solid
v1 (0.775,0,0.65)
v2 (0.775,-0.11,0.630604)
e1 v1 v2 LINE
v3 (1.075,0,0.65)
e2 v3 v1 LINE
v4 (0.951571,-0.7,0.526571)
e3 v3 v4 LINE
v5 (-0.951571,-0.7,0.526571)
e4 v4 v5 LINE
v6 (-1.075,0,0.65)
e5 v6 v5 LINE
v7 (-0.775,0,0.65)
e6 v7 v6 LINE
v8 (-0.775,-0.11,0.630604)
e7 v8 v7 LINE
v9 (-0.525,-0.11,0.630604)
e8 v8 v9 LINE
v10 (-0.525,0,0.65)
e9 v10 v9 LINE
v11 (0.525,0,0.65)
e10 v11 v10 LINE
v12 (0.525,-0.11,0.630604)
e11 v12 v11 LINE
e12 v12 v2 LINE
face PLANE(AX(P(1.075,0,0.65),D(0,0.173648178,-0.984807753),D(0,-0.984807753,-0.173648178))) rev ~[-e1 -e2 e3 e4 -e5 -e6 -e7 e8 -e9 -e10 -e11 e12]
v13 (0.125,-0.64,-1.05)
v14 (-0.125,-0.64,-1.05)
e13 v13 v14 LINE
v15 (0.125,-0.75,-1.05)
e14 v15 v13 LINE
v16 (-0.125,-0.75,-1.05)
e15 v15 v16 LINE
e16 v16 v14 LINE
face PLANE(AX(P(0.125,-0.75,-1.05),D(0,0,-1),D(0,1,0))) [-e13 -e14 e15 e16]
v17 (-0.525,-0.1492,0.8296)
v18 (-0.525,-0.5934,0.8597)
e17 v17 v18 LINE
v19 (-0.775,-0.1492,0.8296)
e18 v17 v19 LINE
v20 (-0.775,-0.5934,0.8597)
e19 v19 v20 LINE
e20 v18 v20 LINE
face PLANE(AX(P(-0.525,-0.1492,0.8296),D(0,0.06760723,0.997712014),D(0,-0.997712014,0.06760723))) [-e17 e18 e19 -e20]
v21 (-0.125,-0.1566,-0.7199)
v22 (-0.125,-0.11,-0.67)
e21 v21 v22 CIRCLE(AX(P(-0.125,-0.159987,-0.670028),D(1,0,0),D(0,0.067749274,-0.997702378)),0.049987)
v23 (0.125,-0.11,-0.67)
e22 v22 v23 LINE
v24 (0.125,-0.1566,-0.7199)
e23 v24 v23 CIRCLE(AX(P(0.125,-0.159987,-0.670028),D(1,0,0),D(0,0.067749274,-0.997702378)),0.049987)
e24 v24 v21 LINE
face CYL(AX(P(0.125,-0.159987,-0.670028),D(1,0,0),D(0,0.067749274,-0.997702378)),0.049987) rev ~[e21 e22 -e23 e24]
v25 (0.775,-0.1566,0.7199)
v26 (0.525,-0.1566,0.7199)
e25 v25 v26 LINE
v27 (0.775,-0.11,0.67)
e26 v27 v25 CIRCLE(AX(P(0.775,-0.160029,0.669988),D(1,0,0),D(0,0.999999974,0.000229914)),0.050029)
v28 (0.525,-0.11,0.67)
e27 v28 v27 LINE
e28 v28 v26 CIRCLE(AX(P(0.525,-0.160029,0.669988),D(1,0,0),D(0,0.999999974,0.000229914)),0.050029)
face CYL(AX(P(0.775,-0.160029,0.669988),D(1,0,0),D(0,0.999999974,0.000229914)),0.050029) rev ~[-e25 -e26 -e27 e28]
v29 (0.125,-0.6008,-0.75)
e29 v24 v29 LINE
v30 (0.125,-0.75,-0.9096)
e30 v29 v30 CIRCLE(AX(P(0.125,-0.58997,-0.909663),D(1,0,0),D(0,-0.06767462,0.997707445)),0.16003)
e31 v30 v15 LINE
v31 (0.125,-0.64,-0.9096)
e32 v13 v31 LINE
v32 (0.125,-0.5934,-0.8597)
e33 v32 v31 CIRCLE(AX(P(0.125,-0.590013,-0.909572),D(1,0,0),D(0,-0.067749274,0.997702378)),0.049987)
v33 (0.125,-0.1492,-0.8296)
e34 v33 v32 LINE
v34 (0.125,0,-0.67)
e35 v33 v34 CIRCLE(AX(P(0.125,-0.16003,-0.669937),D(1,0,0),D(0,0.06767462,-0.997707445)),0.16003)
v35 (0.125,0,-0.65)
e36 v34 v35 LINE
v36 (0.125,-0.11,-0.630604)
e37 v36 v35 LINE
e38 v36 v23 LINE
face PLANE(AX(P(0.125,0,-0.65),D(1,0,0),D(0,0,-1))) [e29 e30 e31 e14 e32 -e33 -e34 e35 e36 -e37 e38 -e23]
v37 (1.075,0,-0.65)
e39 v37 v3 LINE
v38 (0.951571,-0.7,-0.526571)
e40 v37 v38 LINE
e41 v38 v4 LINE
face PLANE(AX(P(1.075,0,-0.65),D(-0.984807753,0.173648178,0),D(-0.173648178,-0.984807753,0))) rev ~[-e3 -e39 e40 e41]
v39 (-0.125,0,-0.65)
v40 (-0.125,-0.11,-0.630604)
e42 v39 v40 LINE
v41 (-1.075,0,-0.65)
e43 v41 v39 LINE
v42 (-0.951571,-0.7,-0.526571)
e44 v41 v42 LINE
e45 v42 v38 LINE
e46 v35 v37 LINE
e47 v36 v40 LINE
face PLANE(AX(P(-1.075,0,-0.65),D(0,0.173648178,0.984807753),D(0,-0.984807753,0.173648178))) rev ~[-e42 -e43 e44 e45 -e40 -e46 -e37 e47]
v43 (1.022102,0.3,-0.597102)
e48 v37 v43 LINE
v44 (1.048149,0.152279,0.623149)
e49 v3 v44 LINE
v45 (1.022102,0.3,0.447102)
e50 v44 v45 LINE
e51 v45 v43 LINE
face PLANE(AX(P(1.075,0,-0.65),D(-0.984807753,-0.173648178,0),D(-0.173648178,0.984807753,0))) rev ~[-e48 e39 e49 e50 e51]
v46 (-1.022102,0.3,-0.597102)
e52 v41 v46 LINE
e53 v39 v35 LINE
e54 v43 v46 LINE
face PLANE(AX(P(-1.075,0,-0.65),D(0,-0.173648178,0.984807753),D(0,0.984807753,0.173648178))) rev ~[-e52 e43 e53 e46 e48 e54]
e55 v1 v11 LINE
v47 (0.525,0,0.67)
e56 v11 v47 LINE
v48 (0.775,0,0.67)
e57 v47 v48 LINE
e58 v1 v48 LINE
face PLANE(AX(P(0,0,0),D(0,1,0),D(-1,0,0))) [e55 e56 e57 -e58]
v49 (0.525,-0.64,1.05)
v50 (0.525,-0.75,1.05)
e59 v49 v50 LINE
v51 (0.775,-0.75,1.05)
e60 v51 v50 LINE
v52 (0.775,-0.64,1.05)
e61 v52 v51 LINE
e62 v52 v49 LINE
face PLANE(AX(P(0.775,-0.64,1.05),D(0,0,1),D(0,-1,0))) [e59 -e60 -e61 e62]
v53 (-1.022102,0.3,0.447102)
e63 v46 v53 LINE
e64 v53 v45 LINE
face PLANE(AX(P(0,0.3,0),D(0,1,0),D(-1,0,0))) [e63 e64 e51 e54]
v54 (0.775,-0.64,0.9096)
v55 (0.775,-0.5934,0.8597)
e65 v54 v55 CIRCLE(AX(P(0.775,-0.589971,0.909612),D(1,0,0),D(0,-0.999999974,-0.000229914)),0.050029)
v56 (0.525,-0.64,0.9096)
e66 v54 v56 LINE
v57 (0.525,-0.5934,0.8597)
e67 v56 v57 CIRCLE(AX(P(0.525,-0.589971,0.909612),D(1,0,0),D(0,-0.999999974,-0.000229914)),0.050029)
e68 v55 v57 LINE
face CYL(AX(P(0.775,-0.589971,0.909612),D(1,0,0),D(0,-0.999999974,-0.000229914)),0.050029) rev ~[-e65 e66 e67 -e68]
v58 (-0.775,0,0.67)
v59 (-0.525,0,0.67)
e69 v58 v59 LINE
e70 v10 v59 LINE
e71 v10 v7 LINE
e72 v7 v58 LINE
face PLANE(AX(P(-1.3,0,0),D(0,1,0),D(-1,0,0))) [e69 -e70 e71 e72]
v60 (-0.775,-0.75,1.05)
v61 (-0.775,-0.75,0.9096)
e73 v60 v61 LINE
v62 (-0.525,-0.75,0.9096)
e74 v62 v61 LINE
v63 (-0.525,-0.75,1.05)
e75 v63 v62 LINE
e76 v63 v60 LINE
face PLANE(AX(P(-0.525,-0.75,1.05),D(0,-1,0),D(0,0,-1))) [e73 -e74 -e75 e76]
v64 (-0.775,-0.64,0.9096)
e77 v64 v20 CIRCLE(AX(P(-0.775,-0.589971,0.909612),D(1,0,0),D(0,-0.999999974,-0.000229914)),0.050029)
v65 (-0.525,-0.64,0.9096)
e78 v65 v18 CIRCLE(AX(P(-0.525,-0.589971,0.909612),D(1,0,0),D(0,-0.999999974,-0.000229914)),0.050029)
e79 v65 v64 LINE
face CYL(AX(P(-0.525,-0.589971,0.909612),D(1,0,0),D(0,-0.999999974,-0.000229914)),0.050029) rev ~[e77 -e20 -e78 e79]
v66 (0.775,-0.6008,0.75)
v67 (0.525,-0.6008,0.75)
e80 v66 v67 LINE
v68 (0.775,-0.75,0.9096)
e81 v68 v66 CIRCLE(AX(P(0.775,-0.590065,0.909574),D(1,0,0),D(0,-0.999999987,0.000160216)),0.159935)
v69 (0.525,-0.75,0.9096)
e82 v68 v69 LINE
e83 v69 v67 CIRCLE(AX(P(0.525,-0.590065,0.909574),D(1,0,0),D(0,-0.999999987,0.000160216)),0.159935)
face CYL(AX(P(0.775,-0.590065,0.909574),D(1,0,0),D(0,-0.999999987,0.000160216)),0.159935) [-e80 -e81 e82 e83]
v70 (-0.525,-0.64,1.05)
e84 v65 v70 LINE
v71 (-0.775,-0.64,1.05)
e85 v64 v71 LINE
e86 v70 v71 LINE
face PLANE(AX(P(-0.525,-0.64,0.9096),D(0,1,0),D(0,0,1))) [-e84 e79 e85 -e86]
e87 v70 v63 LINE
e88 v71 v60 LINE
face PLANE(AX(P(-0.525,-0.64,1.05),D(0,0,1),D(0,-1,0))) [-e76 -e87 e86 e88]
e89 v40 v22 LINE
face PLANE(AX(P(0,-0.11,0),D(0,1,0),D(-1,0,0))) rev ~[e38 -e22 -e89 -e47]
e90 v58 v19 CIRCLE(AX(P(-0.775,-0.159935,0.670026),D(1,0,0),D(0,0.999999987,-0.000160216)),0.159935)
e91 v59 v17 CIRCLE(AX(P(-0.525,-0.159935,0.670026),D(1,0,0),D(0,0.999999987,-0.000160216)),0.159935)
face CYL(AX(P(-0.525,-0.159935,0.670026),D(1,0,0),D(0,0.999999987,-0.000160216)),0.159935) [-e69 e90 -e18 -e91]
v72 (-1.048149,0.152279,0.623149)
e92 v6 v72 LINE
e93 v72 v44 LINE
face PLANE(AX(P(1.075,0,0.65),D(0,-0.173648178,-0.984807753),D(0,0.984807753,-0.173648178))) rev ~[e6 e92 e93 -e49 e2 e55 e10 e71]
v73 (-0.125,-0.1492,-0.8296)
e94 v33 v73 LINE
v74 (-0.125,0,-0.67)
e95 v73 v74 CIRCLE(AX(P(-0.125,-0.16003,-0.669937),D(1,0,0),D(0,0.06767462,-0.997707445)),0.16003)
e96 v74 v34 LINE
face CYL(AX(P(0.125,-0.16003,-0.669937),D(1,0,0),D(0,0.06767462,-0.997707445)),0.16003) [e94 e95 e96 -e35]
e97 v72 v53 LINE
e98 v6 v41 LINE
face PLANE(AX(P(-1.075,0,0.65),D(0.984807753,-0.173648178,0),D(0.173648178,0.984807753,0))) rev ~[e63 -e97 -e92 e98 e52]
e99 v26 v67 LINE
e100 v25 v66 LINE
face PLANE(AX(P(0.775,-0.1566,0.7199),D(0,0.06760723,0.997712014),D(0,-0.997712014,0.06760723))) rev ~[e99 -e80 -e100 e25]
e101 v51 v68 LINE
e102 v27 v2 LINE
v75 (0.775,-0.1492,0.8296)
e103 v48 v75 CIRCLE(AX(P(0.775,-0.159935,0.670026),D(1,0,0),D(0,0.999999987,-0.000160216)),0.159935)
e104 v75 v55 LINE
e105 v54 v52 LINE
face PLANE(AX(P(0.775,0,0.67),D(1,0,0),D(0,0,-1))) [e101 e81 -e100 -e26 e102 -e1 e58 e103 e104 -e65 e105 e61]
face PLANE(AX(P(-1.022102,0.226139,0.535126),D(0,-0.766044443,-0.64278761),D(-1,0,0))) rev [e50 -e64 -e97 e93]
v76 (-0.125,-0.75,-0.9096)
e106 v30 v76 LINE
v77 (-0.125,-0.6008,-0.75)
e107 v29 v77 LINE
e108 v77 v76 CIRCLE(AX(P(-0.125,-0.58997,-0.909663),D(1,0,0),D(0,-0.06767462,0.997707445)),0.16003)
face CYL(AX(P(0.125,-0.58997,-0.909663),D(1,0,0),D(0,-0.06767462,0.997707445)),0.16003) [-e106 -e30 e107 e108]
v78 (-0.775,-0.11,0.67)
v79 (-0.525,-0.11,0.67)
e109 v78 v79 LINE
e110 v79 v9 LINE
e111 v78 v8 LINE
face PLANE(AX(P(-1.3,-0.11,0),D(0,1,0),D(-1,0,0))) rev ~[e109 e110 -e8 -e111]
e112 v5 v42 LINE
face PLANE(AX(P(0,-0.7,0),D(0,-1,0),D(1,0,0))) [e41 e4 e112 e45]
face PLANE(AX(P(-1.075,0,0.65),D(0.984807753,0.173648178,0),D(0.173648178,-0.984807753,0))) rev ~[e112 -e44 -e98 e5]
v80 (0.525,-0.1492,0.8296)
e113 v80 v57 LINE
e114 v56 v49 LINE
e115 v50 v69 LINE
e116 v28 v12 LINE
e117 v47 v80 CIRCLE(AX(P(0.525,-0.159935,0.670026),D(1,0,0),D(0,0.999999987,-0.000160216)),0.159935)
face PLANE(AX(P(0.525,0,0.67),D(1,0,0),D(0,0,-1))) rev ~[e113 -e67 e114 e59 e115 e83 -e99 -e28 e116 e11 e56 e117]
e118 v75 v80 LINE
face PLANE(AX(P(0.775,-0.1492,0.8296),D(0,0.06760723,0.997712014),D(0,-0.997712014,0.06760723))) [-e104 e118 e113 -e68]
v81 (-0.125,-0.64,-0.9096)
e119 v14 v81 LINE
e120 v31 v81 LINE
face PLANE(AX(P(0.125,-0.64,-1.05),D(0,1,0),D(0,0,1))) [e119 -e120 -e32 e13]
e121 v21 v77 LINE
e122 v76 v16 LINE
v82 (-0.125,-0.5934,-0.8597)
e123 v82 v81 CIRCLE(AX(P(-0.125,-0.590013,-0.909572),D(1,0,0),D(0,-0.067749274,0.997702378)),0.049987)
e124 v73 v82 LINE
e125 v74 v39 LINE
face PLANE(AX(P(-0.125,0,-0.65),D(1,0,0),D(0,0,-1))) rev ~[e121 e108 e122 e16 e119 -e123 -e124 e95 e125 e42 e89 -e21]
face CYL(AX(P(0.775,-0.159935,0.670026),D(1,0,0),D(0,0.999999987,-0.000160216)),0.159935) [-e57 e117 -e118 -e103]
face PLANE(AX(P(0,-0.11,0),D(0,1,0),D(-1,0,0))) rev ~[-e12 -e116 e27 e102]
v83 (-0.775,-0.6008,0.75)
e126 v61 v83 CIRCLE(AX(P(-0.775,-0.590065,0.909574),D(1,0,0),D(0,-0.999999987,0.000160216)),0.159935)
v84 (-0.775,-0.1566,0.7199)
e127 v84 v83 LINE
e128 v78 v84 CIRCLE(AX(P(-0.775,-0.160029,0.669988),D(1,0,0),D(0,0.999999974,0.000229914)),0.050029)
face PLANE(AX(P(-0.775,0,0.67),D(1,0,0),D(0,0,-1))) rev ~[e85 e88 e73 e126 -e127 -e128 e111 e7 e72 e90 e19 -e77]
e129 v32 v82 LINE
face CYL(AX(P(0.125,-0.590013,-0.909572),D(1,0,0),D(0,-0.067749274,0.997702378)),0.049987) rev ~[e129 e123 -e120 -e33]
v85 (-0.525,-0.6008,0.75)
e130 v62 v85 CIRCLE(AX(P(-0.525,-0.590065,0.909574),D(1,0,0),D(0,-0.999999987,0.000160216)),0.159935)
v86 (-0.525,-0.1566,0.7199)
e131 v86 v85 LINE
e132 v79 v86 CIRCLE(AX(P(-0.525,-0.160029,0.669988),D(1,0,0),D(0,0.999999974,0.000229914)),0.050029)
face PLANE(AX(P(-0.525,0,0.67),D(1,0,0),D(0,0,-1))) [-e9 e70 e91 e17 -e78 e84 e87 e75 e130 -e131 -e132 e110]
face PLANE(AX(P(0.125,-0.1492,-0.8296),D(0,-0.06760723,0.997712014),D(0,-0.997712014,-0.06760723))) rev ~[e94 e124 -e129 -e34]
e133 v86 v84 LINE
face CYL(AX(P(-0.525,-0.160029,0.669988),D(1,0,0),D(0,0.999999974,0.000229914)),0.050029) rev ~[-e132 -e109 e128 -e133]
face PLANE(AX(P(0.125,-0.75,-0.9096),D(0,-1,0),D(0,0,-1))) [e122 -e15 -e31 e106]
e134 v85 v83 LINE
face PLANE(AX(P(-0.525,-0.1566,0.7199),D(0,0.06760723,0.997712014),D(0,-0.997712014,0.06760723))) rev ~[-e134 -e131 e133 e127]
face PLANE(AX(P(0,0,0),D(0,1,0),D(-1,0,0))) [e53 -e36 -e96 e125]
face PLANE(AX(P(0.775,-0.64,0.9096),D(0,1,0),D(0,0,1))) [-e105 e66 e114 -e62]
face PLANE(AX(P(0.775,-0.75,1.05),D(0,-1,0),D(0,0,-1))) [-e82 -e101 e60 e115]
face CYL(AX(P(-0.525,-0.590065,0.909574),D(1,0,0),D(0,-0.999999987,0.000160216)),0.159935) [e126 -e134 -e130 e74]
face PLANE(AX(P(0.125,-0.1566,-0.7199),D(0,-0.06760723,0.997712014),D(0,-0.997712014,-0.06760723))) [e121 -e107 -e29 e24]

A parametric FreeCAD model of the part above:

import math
import FreeCAD as App
import Part
import Sketcher

V = App.Vector


def edges_at(feature, points):
    """Names of the edges that pass closest to the given points."""
    edges = feature.Shape.Edges
    near = lambda p: min(range(len(edges)), key=lambda i: edges[i].distToShape(Part.Vertex(*p))[0])
    return sorted({f"Edge{near(p) + 1}" for p in points})


def add_polygon(sketch, points):
    """Adds a closed chain of lines whose ends are joined by coincident constraints."""
    first, n = sketch.GeometryCount, len(points)
    for a, b in zip(points, points[1:] + points[:1]):
        sketch.addGeometry(Part.LineSegment(App.Vector(*a, 0), App.Vector(*b, 0)), False)
    for i in range(n):
        sketch.addConstraint(Sketcher.Constraint("Coincident", first + i, 2, first + (i + 1) % n, 1))

doc = App.newDocument("Part")
body = doc.addObject("PartDesign::Body", "Body")

# Sketch on XZ plane
sketch1 = body.newObject("Sketcher::SketchObject", "Sketch")
sketch1.AttachmentSupport = (doc.getObject("XZ_Plane"), [""])
sketch1.MapMode = "FlatFace"
add_polygon(sketch1, [(-1.075, 0.65), (1.075, 0.65), (1.075, -0.65), (-1.075, -0.65)])  # lines 0-3
sketch1.addConstraint([
    Sketcher.Constraint("Horizontal", 0),
    Sketcher.Constraint("Vertical", 1),
    Sketcher.Constraint("Horizontal", 2),
    Sketcher.Constraint("Vertical", 3),
    Sketcher.Constraint("Symmetric", 0, 2, 2, 2, -1, 1),
    Sketcher.Constraint("DistanceY", 1, 2, 1, 1, 1.3),
    Sketcher.Constraint("DistanceX", 0, 1, 0, 2, 2.15),
])
pad1 = body.newObject("PartDesign::Pad", "Pad")
pad1.Profile = sketch1
pad1.Length = 0.3
pad1.Reversed = True
pad1.TaperAngle = -10

# Sketch on XZ plane
sketch2 = body.newObject("Sketcher::SketchObject", "Sketch001")
sketch2.AttachmentSupport = (doc.getObject("XZ_Plane"), [""])
sketch2.MapMode = "FlatFace"
add_polygon(sketch2, [(1.075, -0.65), (1.075, 0.65), (-1.075, 0.65), (-1.075, -0.65)])  # lines 0-3
sketch2.addConstraint([
    Sketcher.Constraint("Vertical", 0),
    Sketcher.Constraint("Horizontal", 1),
    Sketcher.Constraint("Vertical", 2),
    Sketcher.Constraint("Horizontal", 3),
    Sketcher.Constraint("Symmetric", 0, 2, 2, 2, -1, 1),
    Sketcher.Constraint("DistanceY", 0, 1, 0, 2, 1.3),
    Sketcher.Constraint("DistanceX", 1, 2, 1, 1, 2.15),
])
pad2 = body.newObject("PartDesign::Pad", "Pad001")
pad2.Profile = sketch2
pad2.Length = 0.7
pad2.TaperAngle = -10

# Sketch on XZ plane
sketch3 = body.newObject("Sketcher::SketchObject", "Sketch002")
sketch3.AttachmentSupport = (doc.getObject("XZ_Plane"), [""])
sketch3.MapMode = "FlatFace"
add_polygon(sketch3, [(0.775, 0.67), (0.775, 0), (0.525, 0), (0.525, 0.67)])  # lines 0-3
sketch3.addConstraint([
    Sketcher.Constraint("Vertical", 0),
    Sketcher.Constraint("Horizontal", 1),
    Sketcher.Constraint("Vertical", 2),
    Sketcher.Constraint("Horizontal", 3),
    Sketcher.Constraint("PointOnObject", 0, 2, -1),
    Sketcher.Constraint("DistanceX", 1, 2, 1, 1, 0.25),
    Sketcher.Constraint("DistanceY", 0, 2, 0, 1, 0.67),
    Sketcher.Constraint("DistanceX", -1, 1, 0, 2, 0.775),
])
pad3 = body.newObject("PartDesign::Pad", "Pad002")
pad3.Profile = sketch3
pad3.Length = 0.11

# Sketch on YZ plane
sketch4 = body.newObject("Sketcher::SketchObject", "Sketch003")
sketch4.AttachmentSupport = (doc.getObject("YZ_Plane"), [""])
sketch4.MapMode = "FlatFace"
sketch4.AttachmentOffset = App.Placement(V(0, 0, 0.775), App.Rotation())
sketch4.addGeometry([
    Part.LineSegment(V(-0.11, 0.67, 0), V(0, 0.67, 0)),  # 0
    Part.ArcOfCircle(Part.Circle(V(-0.16, 0.67, 0), V(0, 0, 1), 0.16), math.radians(0), math.radians(86.128744)),  # 1
    Part.LineSegment(V(-0.1492, 0.8296, 0), V(-0.5934, 0.8597, 0)),  # 2
    Part.ArcOfCircle(Part.Circle(V(-0.59, 0.9096, 0), V(0, 0, 1), 0.05), math.radians(180), math.radians(266.102104)),  # 3
    Part.LineSegment(V(-0.64, 0.9096, 0), V(-0.64, 1.05, 0)),  # 4
    Part.LineSegment(V(-0.64, 1.05, 0), V(-0.75, 1.05, 0)),  # 5
    Part.LineSegment(V(-0.75, 1.05, 0), V(-0.75, 0.9096, 0)),  # 6
    Part.ArcOfCircle(Part.Circle(V(-0.59, 0.9096, 0), V(0, 0, 1), 0.16), math.radians(180), math.radians(266.128744)),  # 7
    Part.LineSegment(V(-0.6008, 0.75, 0), V(-0.1566, 0.7199, 0)),  # 8
    Part.ArcOfCircle(Part.Circle(V(-0.16, 0.67, 0), V(0, 0, 1), 0.05), math.radians(0), math.radians(86.102104)),  # 9
], False)
sketch4.addConstraint([
    Sketcher.Constraint("Coincident", 0, 2, 1, 1),
    Sketcher.Constraint("Tangent", 1, 2, 2, 1),
    Sketcher.Constraint("Tangent", 2, 2, 3, 2),
    Sketcher.Constraint("Tangent", 3, 1, 4, 1),
    Sketcher.Constraint("Coincident", 4, 2, 5, 1),
    Sketcher.Constraint("Coincident", 5, 2, 6, 1),
    Sketcher.Constraint("Tangent", 6, 2, 7, 1),
    Sketcher.Constraint("Tangent", 7, 2, 8, 1),
    Sketcher.Constraint("Tangent", 8, 2, 9, 2),
    Sketcher.Constraint("Coincident", 9, 1, 0, 1),
    Sketcher.Constraint("Horizontal", 0),
    Sketcher.Constraint("Vertical", 4),
    Sketcher.Constraint("Horizontal", 5),
    Sketcher.Constraint("Vertical", 6),
    Sketcher.Constraint("Coincident", 7, 3, 3, 3),
    Sketcher.Constraint("Coincident", 9, 3, 1, 3),
    Sketcher.Constraint("Equal", 1, 7),
    Sketcher.Constraint("Equal", 3, 9),
    Sketcher.Constraint("PointOnObject", 0, 2, -2),
    Sketcher.Constraint("Horizontal", 9, 3, 0, 2),
    Sketcher.Constraint("Radius", 3, 0.05),
    Sketcher.Constraint("DistanceY", -1, 1, 4, 2, 1.05),
    Sketcher.Constraint("Radius", 1, 0.16),
    Sketcher.Constraint("DistanceY", -1, 1, 1, 3, 0.67),
    Sketcher.Constraint("DistanceX", 3, 3, -1, 1, 0.59),
    Sketcher.Constraint("DistanceY", -1, 1, 7, 2, 0.75),
])
pad4 = body.newObject("PartDesign::Pad", "Pad003")
pad4.Profile = sketch4
pad4.Length = 0.25
pad4.Reversed = True

# Sketch on XZ plane
sketch5 = body.newObject("Sketcher::SketchObject", "Sketch004")
sketch5.AttachmentSupport = (doc.getObject("XZ_Plane"), [""])
sketch5.MapMode = "FlatFace"
add_polygon(sketch5, [(0.125, 0), (0.125, -0.67), (-0.125, -0.67), (-0.125, 0)])  # lines 0-3
sketch5.addConstraint([
    Sketcher.Constraint("Vertical", 0),
    Sketcher.Constraint("Horizontal", 1),
    Sketcher.Constraint("Vertical", 2),
    Sketcher.Constraint("Horizontal", 3),
    Sketcher.Constraint("Symmetric", 2, 2, 3, 2, -1, 1),
    Sketcher.Constraint("DistanceX", 1, 2, 1, 1, 0.25),
    Sketcher.Constraint("DistanceY", 0, 2, 0, 1, 0.67),
])
pad5 = body.newObject("PartDesign::Pad", "Pad004")
pad5.Profile = sketch5
pad5.Length = 0.11

# Sketch on YZ plane
sketch6 = body.newObject("Sketcher::SketchObject", "Sketch005")
sketch6.AttachmentSupport = (doc.getObject("YZ_Plane"), [""])
sketch6.MapMode = "FlatFace"
sketch6.AttachmentOffset = App.Placement(V(0, 0, 0.125), App.Rotation())
sketch6.addGeometry([
    Part.LineSegment(V(0, -0.67, 0), V(-0.11, -0.67, 0)),  # 0
    Part.ArcOfCircle(Part.Circle(V(-0.16, -0.67, 0), V(0, 0, 1), 0.050016), math.radians(-86.102104), math.radians(0)),  # 1
    Part.LineSegment(V(-0.1566, -0.7199, 0), V(-0.6008, -0.75, 0)),  # 2
    Part.ArcOfCircle(Part.Circle(V(-0.59, -0.9096, 0), V(0, 0, 1), 0.159965), math.radians(93.871256), math.radians(180)),  # 3
    Part.LineSegment(V(-0.75, -0.9096, 0), V(-0.75, -1.05, 0)),  # 4
    Part.LineSegment(V(-0.75, -1.05, 0), V(-0.64, -1.05, 0)),  # 5
    Part.LineSegment(V(-0.64, -1.05, 0), V(-0.64, -0.9096, 0)),  # 6
    Part.ArcOfCircle(Part.Circle(V(-0.59, -0.9096, 0), V(0, 0, 1), 0.050016), math.radians(93.897896), math.radians(180)),  # 7
    Part.LineSegment(V(-0.5934, -0.8597, 0), V(-0.1492, -0.8296, 0)),  # 8
    Part.ArcOfCircle(Part.Circle(V(-0.16, -0.67, 0), V(0, 0, 1), 0.159965), math.radians(-86.128744), math.radians(0)),  # 9
], False)
sketch6.addConstraint([
    Sketcher.Constraint("Coincident", 0, 2, 1, 2),
    Sketcher.Constraint("Tangent", 1, 1, 2, 1),
    Sketcher.Constraint("Tangent", 2, 2, 3, 1),
    Sketcher.Constraint("Tangent", 3, 2, 4, 1),
    Sketcher.Constraint("Coincident", 4, 2, 5, 1),
    Sketcher.Constraint("Coincident", 5, 2, 6, 1),
    Sketcher.Constraint("Tangent", 6, 2, 7, 2),
    Sketcher.Constraint("Tangent", 7, 1, 8, 1),
    Sketcher.Constraint("Tangent", 8, 2, 9, 1),
    Sketcher.Constraint("Coincident", 9, 2, 0, 1),
    Sketcher.Constraint("Horizontal", 0),
    Sketcher.Constraint("Vertical", 4),
    Sketcher.Constraint("Horizontal", 5),
    Sketcher.Constraint("Vertical", 6),
    Sketcher.Constraint("Coincident", 7, 3, 3, 3),
    Sketcher.Constraint("Coincident", 9, 3, 1, 3),
    Sketcher.Constraint("Equal", 1, 7),
    Sketcher.Constraint("Equal", 3, 9),
    Sketcher.Constraint("PointOnObject", 9, 2, -2),
    Sketcher.Constraint("Horizontal", 9, 3, 0, 2),
    Sketcher.Constraint("Radius", 1, 0.05),
    Sketcher.Constraint("Radius", 3, 0.16),
    Sketcher.Constraint("DistanceY", 4, 2, 2, 2, 0.3),
    Sketcher.Constraint("DistanceY", 1, 3, -1, 1, 0.67),
    Sketcher.Constraint("DistanceX", 3, 3, -1, 1, 0.59),
    Sketcher.Constraint("DistanceY", 2, 2, -1, 1, 0.75),
])
pad6 = body.newObject("PartDesign::Pad", "Pad005")
pad6.Profile = sketch6
pad6.Length = 0.25
pad6.Reversed = True
doc.recompute()

linearpattern = body.newObject("PartDesign::LinearPattern", "LinearPattern")
linearpattern.Originals = [pad3, pad4]
linearpattern.Direction = (doc.getObject("X_Axis"), [""])
linearpattern.Mode = "offset"
linearpattern.Offset = 1.3
linearpattern.Occurrences = 2
linearpattern.Reversed = True
body.Tip = linearpattern
doc.recompute()

chamfer = body.newObject("PartDesign::Chamfer", "Chamfer")
chamfer.Base = (linearpattern, edges_at(linearpattern, [(0, 0.3, 0.597)]))
chamfer.Size = 0.15

doc.recompute()
